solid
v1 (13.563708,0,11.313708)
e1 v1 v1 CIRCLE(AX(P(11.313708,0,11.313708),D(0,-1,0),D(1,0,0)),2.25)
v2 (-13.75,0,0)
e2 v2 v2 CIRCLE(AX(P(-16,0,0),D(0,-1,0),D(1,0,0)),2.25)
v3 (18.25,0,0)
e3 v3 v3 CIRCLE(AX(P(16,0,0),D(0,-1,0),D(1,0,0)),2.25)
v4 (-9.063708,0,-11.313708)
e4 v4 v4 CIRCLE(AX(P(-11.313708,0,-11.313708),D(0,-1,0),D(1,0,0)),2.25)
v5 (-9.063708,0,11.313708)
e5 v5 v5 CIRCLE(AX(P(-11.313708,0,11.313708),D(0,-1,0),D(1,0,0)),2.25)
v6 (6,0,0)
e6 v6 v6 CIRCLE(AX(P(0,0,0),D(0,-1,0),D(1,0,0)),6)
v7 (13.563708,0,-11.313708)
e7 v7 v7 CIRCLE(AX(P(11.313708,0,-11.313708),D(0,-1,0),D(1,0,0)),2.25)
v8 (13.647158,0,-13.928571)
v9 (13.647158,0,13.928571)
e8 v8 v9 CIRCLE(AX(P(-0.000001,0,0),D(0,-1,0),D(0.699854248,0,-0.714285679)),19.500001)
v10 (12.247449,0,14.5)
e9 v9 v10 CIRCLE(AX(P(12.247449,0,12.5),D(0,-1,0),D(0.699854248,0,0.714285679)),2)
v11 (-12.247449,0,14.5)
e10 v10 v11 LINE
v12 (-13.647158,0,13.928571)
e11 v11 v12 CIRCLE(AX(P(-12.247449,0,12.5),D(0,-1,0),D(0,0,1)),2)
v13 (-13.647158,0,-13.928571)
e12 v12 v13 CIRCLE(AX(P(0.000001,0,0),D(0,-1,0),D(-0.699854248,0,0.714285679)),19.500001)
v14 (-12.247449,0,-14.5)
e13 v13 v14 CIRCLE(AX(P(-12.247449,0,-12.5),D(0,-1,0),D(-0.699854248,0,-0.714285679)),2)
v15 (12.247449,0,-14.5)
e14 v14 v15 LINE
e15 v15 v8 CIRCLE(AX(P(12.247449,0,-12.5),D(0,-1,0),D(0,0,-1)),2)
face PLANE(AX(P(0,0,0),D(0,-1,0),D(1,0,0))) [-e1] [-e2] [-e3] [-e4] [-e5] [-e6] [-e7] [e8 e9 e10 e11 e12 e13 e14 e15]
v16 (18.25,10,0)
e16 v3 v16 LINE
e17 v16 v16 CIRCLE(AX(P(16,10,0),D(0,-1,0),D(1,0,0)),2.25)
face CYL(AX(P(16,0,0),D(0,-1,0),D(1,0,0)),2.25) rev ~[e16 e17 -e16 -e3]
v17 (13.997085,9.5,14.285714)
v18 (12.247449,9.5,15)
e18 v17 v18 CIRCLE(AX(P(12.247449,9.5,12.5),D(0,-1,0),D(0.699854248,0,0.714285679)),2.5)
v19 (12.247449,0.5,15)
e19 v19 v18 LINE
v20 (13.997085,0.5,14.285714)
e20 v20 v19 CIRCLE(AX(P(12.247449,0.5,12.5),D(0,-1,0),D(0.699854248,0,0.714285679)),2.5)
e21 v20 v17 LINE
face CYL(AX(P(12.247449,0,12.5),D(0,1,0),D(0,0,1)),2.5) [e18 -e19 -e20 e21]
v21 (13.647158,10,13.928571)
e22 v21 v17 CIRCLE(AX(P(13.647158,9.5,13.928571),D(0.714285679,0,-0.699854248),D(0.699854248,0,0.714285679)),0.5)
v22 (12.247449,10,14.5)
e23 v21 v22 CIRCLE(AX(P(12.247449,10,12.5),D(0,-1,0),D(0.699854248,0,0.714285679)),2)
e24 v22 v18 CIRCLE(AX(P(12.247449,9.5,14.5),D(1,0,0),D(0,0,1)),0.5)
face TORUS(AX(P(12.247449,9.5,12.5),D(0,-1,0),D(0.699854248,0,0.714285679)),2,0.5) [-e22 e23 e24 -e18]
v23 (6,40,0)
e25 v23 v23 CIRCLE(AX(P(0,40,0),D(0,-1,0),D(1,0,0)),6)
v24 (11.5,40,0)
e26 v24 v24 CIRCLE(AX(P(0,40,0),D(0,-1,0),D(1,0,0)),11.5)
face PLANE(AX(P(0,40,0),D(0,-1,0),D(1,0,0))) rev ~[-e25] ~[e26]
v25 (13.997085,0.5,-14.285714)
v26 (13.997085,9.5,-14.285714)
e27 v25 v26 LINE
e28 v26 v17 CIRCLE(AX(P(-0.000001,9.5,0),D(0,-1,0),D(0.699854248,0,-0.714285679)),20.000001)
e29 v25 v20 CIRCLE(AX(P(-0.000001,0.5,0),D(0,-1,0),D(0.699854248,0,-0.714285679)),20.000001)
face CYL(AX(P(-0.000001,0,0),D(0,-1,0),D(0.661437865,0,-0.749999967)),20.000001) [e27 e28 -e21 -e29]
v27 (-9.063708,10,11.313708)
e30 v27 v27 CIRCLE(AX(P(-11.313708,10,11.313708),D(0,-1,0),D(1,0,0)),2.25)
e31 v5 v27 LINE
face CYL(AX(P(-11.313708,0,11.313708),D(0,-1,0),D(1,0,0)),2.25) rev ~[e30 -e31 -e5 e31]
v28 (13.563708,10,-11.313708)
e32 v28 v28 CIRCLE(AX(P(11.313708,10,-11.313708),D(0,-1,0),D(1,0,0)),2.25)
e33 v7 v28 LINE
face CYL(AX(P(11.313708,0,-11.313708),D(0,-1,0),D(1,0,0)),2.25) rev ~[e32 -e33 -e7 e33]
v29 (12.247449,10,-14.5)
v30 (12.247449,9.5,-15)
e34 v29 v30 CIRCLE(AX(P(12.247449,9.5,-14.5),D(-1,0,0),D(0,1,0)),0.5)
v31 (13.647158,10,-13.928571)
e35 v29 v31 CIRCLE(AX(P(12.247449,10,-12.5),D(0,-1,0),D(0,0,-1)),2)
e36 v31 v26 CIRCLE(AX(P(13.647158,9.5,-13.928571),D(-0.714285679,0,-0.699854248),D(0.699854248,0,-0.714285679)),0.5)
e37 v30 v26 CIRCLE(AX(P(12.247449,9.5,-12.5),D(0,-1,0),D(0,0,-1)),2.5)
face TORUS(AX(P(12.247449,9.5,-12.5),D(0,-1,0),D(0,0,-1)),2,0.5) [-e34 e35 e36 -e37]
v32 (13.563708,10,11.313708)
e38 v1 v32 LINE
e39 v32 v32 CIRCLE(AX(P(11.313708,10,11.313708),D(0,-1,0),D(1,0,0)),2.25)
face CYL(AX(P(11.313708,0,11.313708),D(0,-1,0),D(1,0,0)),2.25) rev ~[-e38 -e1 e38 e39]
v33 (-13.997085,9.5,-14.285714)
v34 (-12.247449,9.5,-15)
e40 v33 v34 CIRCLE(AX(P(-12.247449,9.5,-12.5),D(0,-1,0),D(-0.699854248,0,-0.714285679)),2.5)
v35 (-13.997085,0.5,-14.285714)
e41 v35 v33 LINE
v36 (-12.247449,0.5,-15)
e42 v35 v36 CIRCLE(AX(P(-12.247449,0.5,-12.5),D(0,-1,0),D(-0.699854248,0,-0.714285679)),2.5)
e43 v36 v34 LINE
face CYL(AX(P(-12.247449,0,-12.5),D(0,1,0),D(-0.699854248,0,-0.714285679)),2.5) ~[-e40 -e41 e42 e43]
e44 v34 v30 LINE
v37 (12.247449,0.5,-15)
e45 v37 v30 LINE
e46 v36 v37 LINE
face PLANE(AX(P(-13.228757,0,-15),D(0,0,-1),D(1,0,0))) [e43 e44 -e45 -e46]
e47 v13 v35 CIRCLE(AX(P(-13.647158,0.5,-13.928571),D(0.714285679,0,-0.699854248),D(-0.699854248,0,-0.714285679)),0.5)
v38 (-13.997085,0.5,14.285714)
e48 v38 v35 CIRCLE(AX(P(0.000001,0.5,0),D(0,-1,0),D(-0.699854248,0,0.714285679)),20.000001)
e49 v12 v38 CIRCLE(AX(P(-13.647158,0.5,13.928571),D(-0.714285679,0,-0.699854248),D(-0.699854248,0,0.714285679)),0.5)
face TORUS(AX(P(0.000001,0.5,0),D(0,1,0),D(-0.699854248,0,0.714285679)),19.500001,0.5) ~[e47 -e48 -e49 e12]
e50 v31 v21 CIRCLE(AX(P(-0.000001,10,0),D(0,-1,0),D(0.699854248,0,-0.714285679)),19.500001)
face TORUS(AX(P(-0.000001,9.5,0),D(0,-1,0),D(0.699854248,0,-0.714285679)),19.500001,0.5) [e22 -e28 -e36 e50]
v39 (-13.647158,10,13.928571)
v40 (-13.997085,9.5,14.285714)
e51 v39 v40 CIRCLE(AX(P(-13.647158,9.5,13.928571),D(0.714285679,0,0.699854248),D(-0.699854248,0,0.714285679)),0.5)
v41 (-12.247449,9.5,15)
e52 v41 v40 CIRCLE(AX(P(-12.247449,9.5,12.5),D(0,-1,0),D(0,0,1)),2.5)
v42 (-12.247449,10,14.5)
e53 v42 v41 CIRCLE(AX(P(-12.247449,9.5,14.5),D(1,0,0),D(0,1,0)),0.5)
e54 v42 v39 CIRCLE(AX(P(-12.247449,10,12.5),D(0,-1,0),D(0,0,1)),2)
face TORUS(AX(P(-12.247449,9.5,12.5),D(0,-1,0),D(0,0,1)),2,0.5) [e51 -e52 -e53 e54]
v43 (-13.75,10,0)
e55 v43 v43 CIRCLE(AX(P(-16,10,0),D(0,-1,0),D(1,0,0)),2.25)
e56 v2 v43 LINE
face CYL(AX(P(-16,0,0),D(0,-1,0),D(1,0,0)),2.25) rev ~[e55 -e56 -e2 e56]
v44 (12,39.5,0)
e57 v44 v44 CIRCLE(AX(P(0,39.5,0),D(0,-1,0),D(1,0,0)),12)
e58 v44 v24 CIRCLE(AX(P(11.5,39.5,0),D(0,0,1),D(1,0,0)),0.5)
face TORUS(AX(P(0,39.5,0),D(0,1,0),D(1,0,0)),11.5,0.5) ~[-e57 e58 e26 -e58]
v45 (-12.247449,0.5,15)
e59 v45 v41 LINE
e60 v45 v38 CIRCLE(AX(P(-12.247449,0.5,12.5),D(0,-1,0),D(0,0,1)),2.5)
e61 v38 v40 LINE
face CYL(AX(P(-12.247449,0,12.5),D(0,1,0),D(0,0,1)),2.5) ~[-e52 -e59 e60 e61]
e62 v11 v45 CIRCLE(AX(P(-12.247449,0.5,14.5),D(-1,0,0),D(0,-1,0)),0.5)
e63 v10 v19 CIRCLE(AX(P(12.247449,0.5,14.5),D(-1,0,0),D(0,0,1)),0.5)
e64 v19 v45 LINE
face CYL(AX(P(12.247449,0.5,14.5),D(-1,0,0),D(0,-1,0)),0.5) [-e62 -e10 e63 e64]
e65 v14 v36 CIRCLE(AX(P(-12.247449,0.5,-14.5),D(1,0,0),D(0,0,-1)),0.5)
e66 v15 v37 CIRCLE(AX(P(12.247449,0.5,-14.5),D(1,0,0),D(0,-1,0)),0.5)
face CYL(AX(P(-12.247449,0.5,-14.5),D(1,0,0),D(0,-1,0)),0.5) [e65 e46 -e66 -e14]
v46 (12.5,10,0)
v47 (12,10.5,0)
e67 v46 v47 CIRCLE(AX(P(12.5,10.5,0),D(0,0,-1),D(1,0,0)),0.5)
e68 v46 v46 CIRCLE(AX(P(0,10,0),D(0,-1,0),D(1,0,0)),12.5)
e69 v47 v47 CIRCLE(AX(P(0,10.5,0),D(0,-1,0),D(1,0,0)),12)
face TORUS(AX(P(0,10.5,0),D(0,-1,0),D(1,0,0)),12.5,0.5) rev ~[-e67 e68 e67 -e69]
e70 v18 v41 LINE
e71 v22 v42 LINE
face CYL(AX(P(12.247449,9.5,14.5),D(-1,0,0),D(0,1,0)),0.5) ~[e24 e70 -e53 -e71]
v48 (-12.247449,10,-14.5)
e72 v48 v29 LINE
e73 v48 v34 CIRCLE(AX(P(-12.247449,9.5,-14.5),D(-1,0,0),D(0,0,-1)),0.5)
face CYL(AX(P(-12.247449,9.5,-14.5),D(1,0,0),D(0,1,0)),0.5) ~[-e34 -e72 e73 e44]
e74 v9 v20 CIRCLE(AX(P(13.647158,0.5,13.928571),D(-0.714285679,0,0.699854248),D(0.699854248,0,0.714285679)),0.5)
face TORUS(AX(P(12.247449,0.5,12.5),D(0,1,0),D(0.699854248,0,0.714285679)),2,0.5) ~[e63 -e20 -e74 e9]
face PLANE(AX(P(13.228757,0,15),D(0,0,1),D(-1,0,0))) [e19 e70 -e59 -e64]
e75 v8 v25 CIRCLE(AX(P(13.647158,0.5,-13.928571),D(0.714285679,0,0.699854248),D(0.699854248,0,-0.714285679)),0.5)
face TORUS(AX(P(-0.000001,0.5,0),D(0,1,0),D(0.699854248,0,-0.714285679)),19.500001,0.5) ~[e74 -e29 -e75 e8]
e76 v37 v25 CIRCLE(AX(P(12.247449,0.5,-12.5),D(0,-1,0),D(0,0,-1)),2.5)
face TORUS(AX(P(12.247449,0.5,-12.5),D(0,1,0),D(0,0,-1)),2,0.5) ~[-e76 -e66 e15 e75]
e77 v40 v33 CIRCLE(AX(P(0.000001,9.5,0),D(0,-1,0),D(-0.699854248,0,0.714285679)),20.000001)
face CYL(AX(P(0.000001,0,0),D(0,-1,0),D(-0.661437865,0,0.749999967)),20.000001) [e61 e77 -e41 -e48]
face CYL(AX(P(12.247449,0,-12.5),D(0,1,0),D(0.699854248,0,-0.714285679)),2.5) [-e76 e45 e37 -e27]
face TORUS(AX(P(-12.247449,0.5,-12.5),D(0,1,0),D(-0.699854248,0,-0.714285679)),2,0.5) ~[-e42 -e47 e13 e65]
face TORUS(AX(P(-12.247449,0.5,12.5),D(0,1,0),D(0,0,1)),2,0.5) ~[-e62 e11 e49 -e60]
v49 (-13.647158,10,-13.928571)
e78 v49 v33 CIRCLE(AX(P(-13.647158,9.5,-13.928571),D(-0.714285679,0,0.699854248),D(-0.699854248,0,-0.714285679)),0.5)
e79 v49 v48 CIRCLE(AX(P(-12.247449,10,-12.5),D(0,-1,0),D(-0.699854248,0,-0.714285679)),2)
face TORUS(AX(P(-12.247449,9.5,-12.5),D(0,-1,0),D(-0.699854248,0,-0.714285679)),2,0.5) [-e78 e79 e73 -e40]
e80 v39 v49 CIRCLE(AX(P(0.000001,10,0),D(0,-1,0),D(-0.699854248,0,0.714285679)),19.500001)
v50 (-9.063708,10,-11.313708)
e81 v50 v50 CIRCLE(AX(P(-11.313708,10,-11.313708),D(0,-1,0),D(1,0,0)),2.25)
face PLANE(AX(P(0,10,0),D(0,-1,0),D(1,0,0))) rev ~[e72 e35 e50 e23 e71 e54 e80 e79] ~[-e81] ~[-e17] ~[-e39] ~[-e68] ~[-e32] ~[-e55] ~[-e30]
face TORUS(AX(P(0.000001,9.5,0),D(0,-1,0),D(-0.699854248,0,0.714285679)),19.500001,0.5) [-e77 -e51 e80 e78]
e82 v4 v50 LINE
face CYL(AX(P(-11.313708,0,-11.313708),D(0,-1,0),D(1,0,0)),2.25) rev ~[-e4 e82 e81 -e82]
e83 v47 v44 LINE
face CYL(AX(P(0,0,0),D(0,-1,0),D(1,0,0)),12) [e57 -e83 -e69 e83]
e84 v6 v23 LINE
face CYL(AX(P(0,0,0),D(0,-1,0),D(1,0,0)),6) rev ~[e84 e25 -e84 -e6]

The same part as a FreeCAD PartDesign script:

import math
import FreeCAD as App
import Part
import Sketcher


def edges_at(feature, points):
    """Names of the edges that pass closest to the given points."""
    edges = feature.Shape.Edges
    near = lambda p: min(range(len(edges)), key=lambda i: edges[i].distToShape(Part.Vertex(*p))[0])
    return sorted({f"Edge{near(p) + 1}" for p in points})

doc = App.newDocument("Part")
params = doc.addObject("Spreadsheet::Sheet", "Params")
for row, (alias, value) in enumerate([
    ("sketch1_diameter", "24 mm"),
    ("sketch1_diameter2", "12 mm"),
    ("pad1_length", "40 mm"),
    ("sketch2_diameter", "24 mm"),
    ("sketch2_radius", "20.000001 mm"),
    ("sketch2_diameter2", "4.5 mm"),
    ("pad2_length", "10 mm"),
    ("fillet_radius", "2.5 mm"),
    ("fillet2_radius", "0.5 mm"),
], start=1):
    params.set(f"A{row}", alias)
    params.set(f"B{row}", "=" + value)
    params.setAlias(f"B{row}", alias)

body = doc.addObject("PartDesign::Body", "Body")

# Sketch on XZ plane
sketch1 = body.newObject("Sketcher::SketchObject", "Sketch")
sketch1.AttachmentSupport = (doc.getObject("XZ_Plane"), [""])
sketch1.MapMode = "FlatFace"
sketch1.addGeometry(Part.Circle(App.Vector(0, 0, 0), App.Vector(0, 0, 1), 12), False)
sketch1.addGeometry(Part.Circle(App.Vector(0, 0, 0), App.Vector(0, 0, 1), 6), False)
sketch1.addConstraint(Sketcher.Constraint("Coincident", 0, 3, -1, 1))
sketch1.addConstraint(Sketcher.Constraint("Coincident", 1, 3, -1, 1))
sketch1.addConstraint(Sketcher.Constraint("Diameter", 0, 24.0))
sketch1.addConstraint(Sketcher.Constraint("Diameter", 1, 12.0))
sketch1.setExpression("Constraints[2]", "Params.sketch1_diameter")
sketch1.setExpression("Constraints[3]", "Params.sketch1_diameter2")
pad1 = body.newObject("PartDesign::Pad", "Pad")
pad1.Profile = sketch1
pad1.setExpression("Length", "Params.pad1_length")
pad1.Reversed = True

# Sketch on XZ plane
sketch2 = body.newObject("Sketcher::SketchObject", "Sketch001")
sketch2.AttachmentSupport = (doc.getObject("XZ_Plane"), [""])
sketch2.MapMode = "FlatFace"
sketch2.addGeometry(Part.LineSegment(App.Vector(13.2, 15, 0), App.Vector(-13.2, 15, 0)), False)
sketch2.addGeometry(Part.ArcOfCircle(Part.Circle(App.Vector(0, 0, 0), App.Vector(0, 0, 1), 20), math.radians(131), math.radians(229)), False)
sketch2.addGeometry(Part.LineSegment(App.Vector(-13.2, -15, 0), App.Vector(13.2, -15, 0)), False)
sketch2.addGeometry(Part.ArcOfCircle(Part.Circle(App.Vector(0, 0, 0), App.Vector(0, 0, 1), 20), math.radians(-49), math.radians(49)), False)
sketch2.addGeometry(Part.Circle(App.Vector(-11.3, -11.3, 0), App.Vector(0, 0, 1), 2.2), False)
sketch2.addGeometry(Part.Circle(App.Vector(11.3, -11.3, 0), App.Vector(0, 0, 1), 2.2), False)
sketch2.addGeometry(Part.Circle(App.Vector(-16, 0, 0), App.Vector(0, 0, 1), 2.2), False)
sketch2.addGeometry(Part.Circle(App.Vector(-11.3, 11.3, 0), App.Vector(0, 0, 1), 2.2), False)
sketch2.addGeometry(Part.Circle(App.Vector(0, 0, 0), App.Vector(0, 0, 1), 12), False)
sketch2.addGeometry(Part.Circle(App.Vector(16, 0, 0), App.Vector(0, 0, 1), 2.2), False)
sketch2.addGeometry(Part.Circle(App.Vector(11.3, 11.3, 0), App.Vector(0, 0, 1), 2.2), False)
sketch2.addConstraint(Sketcher.Constraint("Coincident", 0, 2, 1, 1))
sketch2.addConstraint(Sketcher.Constraint("Coincident", 1, 2, 2, 1))
sketch2.addConstraint(Sketcher.Constraint("Coincident", 2, 2, 3, 1))
sketch2.addConstraint(Sketcher.Constraint("Coincident", 3, 2, 0, 1))
sketch2.addConstraint(Sketcher.Constraint("Horizontal", 0))
sketch2.addConstraint(Sketcher.Constraint("Horizontal", 2))
sketch2.addConstraint(Sketcher.Constraint("Coincident", 1, 3, -1, 1))
sketch2.addConstraint(Sketcher.Constraint("Coincident", 3, 3, -1, 1))
sketch2.addConstraint(Sketcher.Constraint("Coincident", 8, 3, -1, 1))
sketch2.addConstraint(Sketcher.Constraint("Equal", 1, 3))
sketch2.addConstraint(Sketcher.Constraint("Equal", 4, 5))
sketch2.addConstraint(Sketcher.Constraint("Equal", 5, 6))
sketch2.addConstraint(Sketcher.Constraint("Equal", 6, 7))
sketch2.addConstraint(Sketcher.Constraint("Equal", 7, 9))
sketch2.addConstraint(Sketcher.Constraint("Equal", 9, 10))
sketch2.addConstraint(Sketcher.Constraint("Symmetric", 5, 3, 7, 3, -1, 1))
sketch2.addConstraint(Sketcher.Constraint("Symmetric", 6, 3, 9, 3, -1, 1))
sketch2.addConstraint(Sketcher.Constraint("Symmetric", 4, 3, 10, 3, -1, 1))
sketch2.addConstraint(Sketcher.Constraint("Symmetric", 4, 3, 5, 3, -2))
sketch2.addConstraint(Sketcher.Constraint("PointOnObject", 6, 3, -1))
sketch2.addConstraint(Sketcher.Constraint("Vertical", 0, 2, 1, 2))
sketch2.addConstraint(Sketcher.Constraint("Diameter", 8, 24.0))
sketch2.addConstraint(Sketcher.Constraint("Radius", 1, 20.000001))
sketch2.addConstraint(Sketcher.Constraint("Diameter", 4, 4.5))
sketch2.addConstraint(Sketcher.Constraint("DistanceX", 6, 3, -1, 1, 16.0))
sketch2.addConstraint(Sketcher.Constraint("DistanceY", -1, 1, 0, 2, 15.0))
sketch2.addConstraint(Sketcher.Constraint("DistanceX", 4, 3, 1, 3, 11.313709))
sketch2.addConstraint(Sketcher.Constraint("DistanceY", 7, 3, 0, 2, 3.686292))
sketch2.setExpression("Constraints[21]", "Params.sketch2_diameter")
sketch2.setExpression("Constraints[22]", "Params.sketch2_radius")
sketch2.setExpression("Constraints[23]", "Params.sketch2_diameter2")
pad2 = body.newObject("PartDesign::Pad", "Pad001")
pad2.Profile = sketch2
pad2.setExpression("Length", "Params.pad2_length")
pad2.Reversed = True
doc.recompute()

fillet = body.newObject("PartDesign::Fillet", "Fillet")
fillet.Base = (pad2, edges_at(pad2, [
    (-13.229, 5, 15),
    (-13.229, 5, -15),
    (13.229, 5, 15),
    (13.229, 5, -15),
]))
fillet.setExpression("Radius", "Params.fillet_radius")
doc.recompute()

fillet2 = body.newObject("PartDesign::Fillet", "Fillet001")
fillet2.Base = (fillet, edges_at(fillet, [
    (20, 10, 0),
    (20, 0, 0),
    (-12, 10, 0),
    (-12, 40, 0),
]))
fillet2.setExpression("Radius", "Params.fillet2_radius")

doc.recompute()
